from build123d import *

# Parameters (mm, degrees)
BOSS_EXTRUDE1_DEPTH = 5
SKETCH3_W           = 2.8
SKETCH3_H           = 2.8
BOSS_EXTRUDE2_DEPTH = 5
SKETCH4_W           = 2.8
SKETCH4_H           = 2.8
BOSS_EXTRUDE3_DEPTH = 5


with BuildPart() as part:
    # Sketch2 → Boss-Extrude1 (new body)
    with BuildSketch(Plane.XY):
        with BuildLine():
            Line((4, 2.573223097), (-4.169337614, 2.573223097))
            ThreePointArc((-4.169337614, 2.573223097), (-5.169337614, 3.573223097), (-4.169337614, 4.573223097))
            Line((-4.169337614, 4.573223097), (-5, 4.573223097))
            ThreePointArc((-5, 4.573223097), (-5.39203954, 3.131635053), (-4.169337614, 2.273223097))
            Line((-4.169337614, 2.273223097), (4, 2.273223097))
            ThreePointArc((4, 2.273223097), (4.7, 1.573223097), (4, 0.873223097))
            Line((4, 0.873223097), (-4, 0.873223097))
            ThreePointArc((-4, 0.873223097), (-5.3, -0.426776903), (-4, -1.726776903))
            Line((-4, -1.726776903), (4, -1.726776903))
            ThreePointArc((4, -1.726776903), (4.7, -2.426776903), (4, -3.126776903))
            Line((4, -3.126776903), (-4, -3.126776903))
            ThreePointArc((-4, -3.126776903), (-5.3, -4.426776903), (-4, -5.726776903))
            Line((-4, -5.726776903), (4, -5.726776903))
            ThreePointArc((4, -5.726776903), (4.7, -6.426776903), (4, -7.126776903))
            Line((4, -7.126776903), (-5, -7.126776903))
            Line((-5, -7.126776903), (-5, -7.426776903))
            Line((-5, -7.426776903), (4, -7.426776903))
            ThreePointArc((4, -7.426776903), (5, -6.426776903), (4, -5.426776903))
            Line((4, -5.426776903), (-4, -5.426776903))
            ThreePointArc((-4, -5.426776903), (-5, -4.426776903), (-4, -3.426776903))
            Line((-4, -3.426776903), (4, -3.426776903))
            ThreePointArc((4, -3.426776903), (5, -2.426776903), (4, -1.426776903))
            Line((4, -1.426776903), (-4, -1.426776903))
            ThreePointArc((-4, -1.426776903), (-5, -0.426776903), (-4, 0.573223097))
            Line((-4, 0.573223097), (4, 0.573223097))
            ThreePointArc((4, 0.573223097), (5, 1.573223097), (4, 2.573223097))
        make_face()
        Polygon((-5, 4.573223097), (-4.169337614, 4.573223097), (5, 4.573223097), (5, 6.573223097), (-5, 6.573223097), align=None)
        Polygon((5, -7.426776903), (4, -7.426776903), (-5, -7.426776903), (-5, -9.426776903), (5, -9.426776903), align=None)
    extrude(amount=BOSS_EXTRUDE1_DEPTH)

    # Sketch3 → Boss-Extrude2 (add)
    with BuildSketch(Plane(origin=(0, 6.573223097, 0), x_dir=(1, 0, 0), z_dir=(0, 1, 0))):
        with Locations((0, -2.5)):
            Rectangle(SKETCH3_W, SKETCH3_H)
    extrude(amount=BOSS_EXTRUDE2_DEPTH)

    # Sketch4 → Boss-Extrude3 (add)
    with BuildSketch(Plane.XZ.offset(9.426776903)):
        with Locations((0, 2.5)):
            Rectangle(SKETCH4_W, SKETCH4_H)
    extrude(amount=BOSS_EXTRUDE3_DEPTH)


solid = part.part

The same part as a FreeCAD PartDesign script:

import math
import FreeCAD as App
import Part
import Sketcher

V = App.Vector


def add_polygon(sketch, points):
    """Adds a closed chain of lines whose ends are joined by coincident constraints."""
    first, n = sketch.GeometryCount, len(points)
    for a, b in zip(points, points[1:] + points[:1]):
        sketch.addGeometry(Part.LineSegment(App.Vector(*a, 0), App.Vector(*b, 0)), False)
    for i in range(n):
        sketch.addConstraint(Sketcher.Constraint("Coincident", first + i, 2, first + (i + 1) % n, 1))

doc = App.newDocument("Part")
body = doc.addObject("PartDesign::Body", "Body")

# Sketch on XY plane
sketch1 = doc.addObject("Sketcher::SketchObject", "Sketch")
body.addObject(sketch1)
sketch1.AttachmentSupport = (doc.XY_Plane, [""])
sketch1.MapMode = "FlatFace"
sketch1.addGeometry([
    Part.LineSegment(V(4, 2.6, 0), V(-4.2, 2.6, 0)),  # 0
    Part.ArcOfCircle(Part.Circle(V(-4.2, 3.6, 0), V(0, 0, 1), 1), math.radians(90), math.radians(270)),  # 1
    Part.LineSegment(V(-4.2, 4.6, 0), V(5, 4.6, 0)),  # 2
    Part.LineSegment(V(5, 4.6, 0), V(5, 6.6, 0)),  # 3
    Part.LineSegment(V(5, 6.6, 0), V(-5, 6.6, 0)),  # 4
    Part.LineSegment(V(-5, 6.6, 0), V(-5, 4.6, 0)),  # 5
    Part.ArcOfCircle(Part.Circle(V(-4.2, 3.6, 0), V(0, 0, 1), 1.3), math.radians(130), math.radians(270)),  # 6
    Part.LineSegment(V(-4.2, 2.3, 0), V(4, 2.3, 0)),  # 7
    Part.ArcOfCircle(Part.Circle(V(4, 1.6, 0), V(0, 0, 1), 0.7), math.radians(-90), math.radians(90)),  # 8
    Part.LineSegment(V(4, 0.9, 0), V(-4, 0.9, 0)),  # 9
    Part.ArcOfCircle(Part.Circle(V(-4, -0.4, 0), V(0, 0, 1), 1.3), math.radians(90), math.radians(270)),  # 10
    Part.LineSegment(V(-4, -1.7, 0), V(4, -1.7, 0)),  # 11
    Part.ArcOfCircle(Part.Circle(V(4, -2.4, 0), V(0, 0, 1), 0.7), math.radians(-90), math.radians(90)),  # 12
    Part.LineSegment(V(4, -3.1, 0), V(-4, -3.1, 0)),  # 13
    Part.ArcOfCircle(Part.Circle(V(-4, -4.4, 0), V(0, 0, 1), 1.3), math.radians(90), math.radians(270)),  # 14
    Part.LineSegment(V(-4, -5.7, 0), V(4, -5.7, 0)),  # 15
    Part.ArcOfCircle(Part.Circle(V(4, -6.4, 0), V(0, 0, 1), 0.7), math.radians(-90), math.radians(90)),  # 16
    Part.LineSegment(V(4, -7.1, 0), V(-5, -7.1, 0)),  # 17
    Part.LineSegment(V(-5, -7.1, 0), V(-5, -9.4, 0)),  # 18
    Part.LineSegment(V(-5, -9.4, 0), V(5, -9.4, 0)),  # 19
    Part.LineSegment(V(5, -9.4, 0), V(5, -7.4, 0)),  # 20
    Part.LineSegment(V(5, -7.4, 0), V(4, -7.4, 0)),  # 21
    Part.ArcOfCircle(Part.Circle(V(4, -6.4, 0), V(0, 0, 1), 1), math.radians(-90), math.radians(90)),  # 22
    Part.LineSegment(V(4, -5.4, 0), V(-4, -5.4, 0)),  # 23
    Part.ArcOfCircle(Part.Circle(V(-4, -4.4, 0), V(0, 0, 1), 1), math.radians(90), math.radians(270)),  # 24
    Part.LineSegment(V(-4, -3.4, 0), V(4, -3.4, 0)),  # 25
    Part.ArcOfCircle(Part.Circle(V(4, -2.4, 0), V(0, 0, 1), 1), math.radians(-90), math.radians(90)),  # 26
    Part.LineSegment(V(4, -1.4, 0), V(-4, -1.4, 0)),  # 27
    Part.ArcOfCircle(Part.Circle(V(-4, -0.4, 0), V(0, 0, 1), 1), math.radians(90), math.radians(270)),  # 28
    Part.LineSegment(V(-4, 0.6, 0), V(4, 0.6, 0)),  # 29
    Part.ArcOfCircle(Part.Circle(V(4, 1.6, 0), V(0, 0, 1), 1), math.radians(-90), math.radians(90)),  # 30
], False)
sketch1.addConstraint([
    Sketcher.Constraint("Tangent", 0, 2, 1, 2),
    Sketcher.Constraint("Tangent", 1, 1, 2, 1),
    Sketcher.Constraint("Coincident", 2, 2, 3, 1),
    Sketcher.Constraint("Coincident", 3, 2, 4, 1),
    Sketcher.Constraint("Coincident", 4, 2, 5, 1),
    Sketcher.Constraint("Coincident", 5, 2, 6, 1),
    Sketcher.Constraint("Tangent", 6, 2, 7, 1),
    Sketcher.Constraint("Tangent", 7, 2, 8, 2),
    Sketcher.Constraint("Tangent", 8, 1, 9, 1),
    Sketcher.Constraint("Tangent", 9, 2, 10, 1),
    Sketcher.Constraint("Tangent", 10, 2, 11, 1),
    Sketcher.Constraint("Tangent", 11, 2, 12, 2),
    Sketcher.Constraint("Tangent", 12, 1, 13, 1),
    Sketcher.Constraint("Tangent", 13, 2, 14, 1),
    Sketcher.Constraint("Tangent", 14, 2, 15, 1),
    Sketcher.Constraint("Tangent", 15, 2, 16, 2),
    Sketcher.Constraint("Tangent", 16, 1, 17, 1),
    Sketcher.Constraint("Coincident", 17, 2, 18, 1),
    Sketcher.Constraint("Coincident", 18, 2, 19, 1),
    Sketcher.Constraint("Coincident", 19, 2, 20, 1),
    Sketcher.Constraint("Coincident", 20, 2, 21, 1),
    Sketcher.Constraint("Tangent", 21, 2, 22, 1),
    Sketcher.Constraint("Tangent", 22, 2, 23, 1),
    Sketcher.Constraint("Tangent", 23, 2, 24, 2),
    Sketcher.Constraint("Tangent", 24, 1, 25, 1),
    Sketcher.Constraint("Tangent", 25, 2, 26, 1),
    Sketcher.Constraint("Tangent", 26, 2, 27, 1),
    Sketcher.Constraint("Tangent", 27, 2, 28, 2),
    Sketcher.Constraint("Tangent", 28, 1, 29, 1),
    Sketcher.Constraint("Tangent", 29, 2, 30, 1),
    Sketcher.Constraint("Tangent", 30, 2, 0, 1),
    Sketcher.Constraint("Horizontal", 0),
    Sketcher.Constraint("Horizontal", 2),
    Sketcher.Constraint("Vertical", 3),
    Sketcher.Constraint("Horizontal", 4),
    Sketcher.Constraint("Vertical", 5),
    Sketcher.Constraint("Horizontal", 7),
    Sketcher.Constraint("Horizontal", 9),
    Sketcher.Constraint("Horizontal", 11),
    Sketcher.Constraint("Horizontal", 13),
    Sketcher.Constraint("Horizontal", 15),
    Sketcher.Constraint("Horizontal", 17),
    Sketcher.Constraint("Vertical", 18),
    Sketcher.Constraint("Horizontal", 19),
    Sketcher.Constraint("Vertical", 20),
    Sketcher.Constraint("Horizontal", 21),
    Sketcher.Constraint("Horizontal", 23),
    Sketcher.Constraint("Horizontal", 25),
    Sketcher.Constraint("Horizontal", 27),
    Sketcher.Constraint("Horizontal", 29),
    Sketcher.Constraint("Coincident", 6, 3, 1, 3),
    Sketcher.Constraint("Coincident", 22, 3, 16, 3),
    Sketcher.Constraint("Coincident", 24, 3, 14, 3),
    Sketcher.Constraint("Coincident", 26, 3, 12, 3),
    Sketcher.Constraint("Coincident", 28, 3, 10, 3),
    Sketcher.Constraint("Coincident", 30, 3, 8, 3),
    Sketcher.Constraint("Equal", 6, 10),
    Sketcher.Constraint("Equal", 8, 12),
    Sketcher.Constraint("Equal", 10, 14),
    Sketcher.Constraint("Equal", 12, 16),
    Sketcher.Constraint("Equal", 1, 22),
    Sketcher.Constraint("Symmetric", 2, 2, 5, 2, -2),
    Sketcher.Constraint("Vertical", 8, 3, 12, 3),
    Sketcher.Constraint("Vertical", 10, 3, 14, 3),
    Sketcher.Constraint("Vertical", 12, 3, 16, 3),
    Sketcher.Constraint("Vertical", 5, 2, 17, 2),
    Sketcher.Constraint("Vertical", 3, 2, 19, 2),
    Sketcher.Constraint("Equal", 5, 20),
    Sketcher.Constraint("Radius", 1, 1.0),
    Sketcher.Constraint("Radius", 6, 1.3),
    Sketcher.Constraint("DistanceX", 4, 2, 4, 1, 10.0),
    Sketcher.Constraint("DistanceX", 9, 2, 9, 1, 8.0),
    Sketcher.Constraint("DistanceX", 17, 2, 17, 1, 9.0),
    Sketcher.Constraint("DistanceY", 3, 1, 3, 2, 2.0),
    Sketcher.Constraint("DistanceY", -1, 1, 1, 3, 3.573223),
])
pad1 = doc.addObject("PartDesign::Pad", "Pad")
body.addObject(pad1)
pad1.Profile = sketch1
pad1.Length = 5

# Sketch on XZ plane
sketch2 = doc.addObject("Sketcher::SketchObject", "Sketch001")
body.addObject(sketch2)
sketch2.AttachmentSupport = (doc.XZ_Plane, [""])
sketch2.MapMode = "FlatFace"
sketch2.AttachmentOffset = App.Placement(V(0, 0, -6.573223), App.Rotation())
add_polygon(sketch2, [(-1.4, 1.1), (-1.4, 3.9), (1.4, 3.9), (1.4, 1.1)])  # lines 0-3
sketch2.addConstraint([
    Sketcher.Constraint("Vertical", 0),
    Sketcher.Constraint("Horizontal", 1),
    Sketcher.Constraint("Vertical", 2),
    Sketcher.Constraint("Horizontal", 3),
    Sketcher.Constraint("Equal", 3, 0),
    Sketcher.Constraint("DistanceX", 1, 1, 1, 2, 2.8),
    Sketcher.Constraint("DistanceX", 0, 2, -1, 1, 1.4),
    Sketcher.Constraint("DistanceY", -1, 1, 0, 2, 3.9),
])
pad2 = doc.addObject("PartDesign::Pad", "Pad001")
body.addObject(pad2)
pad2.Profile = sketch2
pad2.Length = 5
pad2.Reversed = True

# Sketch on XZ plane
sketch3 = doc.addObject("Sketcher::SketchObject", "Sketch002")
body.addObject(sketch3)
sketch3.AttachmentSupport = (doc.XZ_Plane, [""])
sketch3.MapMode = "FlatFace"
sketch3.AttachmentOffset = App.Placement(V(0, 0, 9.426777), App.Rotation())
add_polygon(sketch3, [(-1.4, 3.9), (-1.4, 1.1), (1.4, 1.1), (1.4, 3.9)])  # lines 0-3
sketch3.addConstraint([
    Sketcher.Constraint("Vertical", 0),
    Sketcher.Constraint("Horizontal", 1),
    Sketcher.Constraint("Vertical", 2),
    Sketcher.Constraint("Horizontal", 3),
    Sketcher.Constraint("Equal", 3, 0),
    Sketcher.Constraint("DistanceX", 1, 1, 1, 2, 2.8),
    Sketcher.Constraint("DistanceX", 0, 2, -1, 1, 1.4),
    Sketcher.Constraint("DistanceY", -1, 1, 0, 2, 1.1),
])
pad3 = doc.addObject("PartDesign::Pad", "Pad002")
body.addObject(pad3)
pad3.Profile = sketch3
pad3.Length = 5

doc.recompute()
